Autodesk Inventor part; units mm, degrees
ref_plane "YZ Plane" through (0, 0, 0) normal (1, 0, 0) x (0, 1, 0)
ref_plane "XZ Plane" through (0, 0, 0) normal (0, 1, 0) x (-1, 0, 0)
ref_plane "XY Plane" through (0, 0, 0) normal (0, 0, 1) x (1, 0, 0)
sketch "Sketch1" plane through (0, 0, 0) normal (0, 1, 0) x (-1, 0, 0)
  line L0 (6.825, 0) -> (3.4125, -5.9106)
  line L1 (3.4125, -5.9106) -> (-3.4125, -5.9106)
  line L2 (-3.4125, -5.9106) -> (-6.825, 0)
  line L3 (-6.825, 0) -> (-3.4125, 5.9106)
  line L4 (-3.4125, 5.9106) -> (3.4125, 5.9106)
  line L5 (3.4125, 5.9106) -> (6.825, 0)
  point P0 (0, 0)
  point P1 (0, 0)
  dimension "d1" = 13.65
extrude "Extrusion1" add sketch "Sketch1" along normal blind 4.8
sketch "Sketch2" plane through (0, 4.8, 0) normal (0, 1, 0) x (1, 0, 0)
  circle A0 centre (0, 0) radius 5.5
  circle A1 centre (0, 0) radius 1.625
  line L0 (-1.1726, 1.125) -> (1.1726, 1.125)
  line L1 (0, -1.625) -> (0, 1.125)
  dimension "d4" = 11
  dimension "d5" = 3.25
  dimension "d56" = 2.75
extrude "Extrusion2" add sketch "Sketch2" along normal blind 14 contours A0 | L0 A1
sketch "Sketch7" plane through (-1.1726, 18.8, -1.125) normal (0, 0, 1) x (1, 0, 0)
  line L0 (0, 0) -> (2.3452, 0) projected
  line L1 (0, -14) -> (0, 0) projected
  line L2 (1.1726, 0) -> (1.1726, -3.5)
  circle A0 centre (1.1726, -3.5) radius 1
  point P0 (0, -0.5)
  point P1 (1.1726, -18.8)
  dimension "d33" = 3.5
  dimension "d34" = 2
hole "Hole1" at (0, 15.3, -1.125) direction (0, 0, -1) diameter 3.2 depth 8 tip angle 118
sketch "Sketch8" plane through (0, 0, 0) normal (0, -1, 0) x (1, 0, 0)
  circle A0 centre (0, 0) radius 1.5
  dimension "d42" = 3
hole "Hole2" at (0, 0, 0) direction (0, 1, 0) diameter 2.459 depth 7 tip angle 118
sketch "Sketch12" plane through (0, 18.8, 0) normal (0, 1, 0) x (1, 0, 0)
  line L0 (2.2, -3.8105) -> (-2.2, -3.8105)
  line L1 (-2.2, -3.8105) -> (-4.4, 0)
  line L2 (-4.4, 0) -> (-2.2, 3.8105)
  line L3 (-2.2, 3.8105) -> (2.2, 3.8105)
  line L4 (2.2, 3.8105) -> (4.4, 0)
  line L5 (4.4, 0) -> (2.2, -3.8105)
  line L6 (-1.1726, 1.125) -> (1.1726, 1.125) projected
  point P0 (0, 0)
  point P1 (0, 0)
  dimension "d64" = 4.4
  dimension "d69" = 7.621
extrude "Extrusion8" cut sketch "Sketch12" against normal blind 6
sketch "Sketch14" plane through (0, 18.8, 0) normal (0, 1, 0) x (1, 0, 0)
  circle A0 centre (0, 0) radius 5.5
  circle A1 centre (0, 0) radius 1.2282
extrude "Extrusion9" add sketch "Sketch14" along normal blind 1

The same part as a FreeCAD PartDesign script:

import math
import FreeCAD as App
import Part
import Sketcher
from FreeCAD import Vector
Q = App.Units.Quantity

doc = App.newDocument("Part")
body = doc.addObject("PartDesign::Body", "Body")

# Sketch on XZ plane
sketch1 = body.newObject("Sketcher::SketchObject", "Sketch")
sketch1.AttachmentSupport = (doc.getObject("XZ_Plane"), [""])
sketch1.MapMode = "FlatFace"
sketch1.addGeometry([
    Part.LineSegment(Vector(-3.4125, -5.9106, 0), Vector(-6.825, 0, 0)),  # 0
    Part.LineSegment(Vector(-6.825, 0, 0), Vector(-3.4125, 5.9106, 0)),  # 1
    Part.LineSegment(Vector(-3.4125, 5.9106, 0), Vector(3.4125, 5.9106, 0)),  # 2
    Part.LineSegment(Vector(3.4125, 5.9106, 0), Vector(6.825, 0, 0)),  # 3
    Part.LineSegment(Vector(6.825, 0, 0), Vector(3.4125, -5.9106, 0)),  # 4
    Part.LineSegment(Vector(3.4125, -5.9106, 0), Vector(-3.4125, -5.9106, 0)),  # 5
], False)
sketch1.addConstraint([
    Sketcher.Constraint("Coincident", 0, 2, 1, 1),
    Sketcher.Constraint("Coincident", 1, 2, 2, 1),
    Sketcher.Constraint("Coincident", 2, 2, 3, 1),
    Sketcher.Constraint("Coincident", 3, 2, 4, 1),
    Sketcher.Constraint("Coincident", 4, 2, 5, 1),
    Sketcher.Constraint("Coincident", 5, 2, 0, 1),
    Sketcher.Constraint("Horizontal", 2),
    Sketcher.Constraint("Horizontal", 5),
    Sketcher.Constraint("Symmetric", 0, 2, 3, 2, -1, 1),
    Sketcher.Constraint("Symmetric", 1, 2, 4, 2, -1, 1),
    Sketcher.Constraint("PointOnObject", 0, 2, -1),
    Sketcher.Constraint("Parallel", 0, 3),
    Sketcher.Constraint("Vertical", 2, 2, 4, 2),
    Sketcher.Constraint("Angle", 0, Q("120 deg")),
    Sketcher.Constraint("DistanceX", 0, 2, 3, 2, Q("13.65 mm")),
    Sketcher.Constraint("DistanceX", 2, 1, 2, 2, Q("6.825 mm")),
])
pad1 = body.newObject("PartDesign::Pad", "Pad")
pad1.Profile = sketch1
pad1.Length = 4.8
pad1.Reversed = True

# Sketch on XZ plane
sketch2 = body.newObject("Sketcher::SketchObject", "Sketch001")
sketch2.AttachmentSupport = (doc.getObject("XZ_Plane"), [""])
sketch2.MapMode = "FlatFace"
sketch2.AttachmentOffset = App.Placement(Vector(0, 0, -4.8), App.Rotation())
sketch2.addGeometry([
    Part.Circle(Vector(0, 0, 0), Vector(0, 0, 1), 5.5),
    Part.ArcOfCircle(Part.Circle(Vector(0, 0, 0), Vector(0, 0, 1), 1.625), math.radians(-43.813158), math.radians(223.813158)),
    Part.LineSegment(Vector(1.1726, -1.125, 0), Vector(-1.1726, -1.125, 0)),
], False)
sketch2.addConstraint([
    Sketcher.Constraint("Coincident", 1, 1, 2, 1),
    Sketcher.Constraint("Coincident", 2, 2, 1, 2),
    Sketcher.Constraint("Horizontal", 2),
    Sketcher.Constraint("Coincident", 0, 3, -1, 1),
    Sketcher.Constraint("Coincident", 1, 3, -1, 1),
    Sketcher.Constraint("Diameter", 0, Q("11 mm")),
    Sketcher.Constraint("Radius", 1, Q("1.625 mm")),
    Sketcher.Constraint("DistanceX", 2, 2, 2, 1, Q("2.3452 mm")),
])
pad2 = body.newObject("PartDesign::Pad", "Pad001")
pad2.Profile = sketch2
pad2.Length = 14
pad2.Reversed = True

# Sketch on XY plane
sketch3 = body.newObject("Sketcher::SketchObject", "Sketch002")
sketch3.AttachmentSupport = (doc.getObject("XY_Plane"), [""])
sketch3.MapMode = "FlatFace"
sketch3.AttachmentOffset = App.Placement(Vector(0, 0, -1.125), App.Rotation())
sketch3.addGeometry(Part.Circle(Vector(0, 15.3, 0), Vector(0, 0, 1), 1.6), False)
sketch3.addConstraint([
    Sketcher.Constraint("PointOnObject", 0, 3, -2),
    Sketcher.Constraint("Diameter", 0, Q("3.2 mm")),
    Sketcher.Constraint("DistanceY", -1, 1, 0, 3, Q("15.3 mm")),
])
doc.recompute()
hole = body.newObject("PartDesign::Hole", "Hole")
hole.Profile = sketch3
hole.ThreadType = "None"
hole.Diameter = 3.2
hole.DepthType = "Dimension"
hole.Depth = 8
hole.DrillPoint = "Angled"
hole.DrillPointAngle = 118

# Sketch on XZ plane
sketch4 = body.newObject("Sketcher::SketchObject", "Sketch003")
sketch4.AttachmentSupport = (doc.getObject("XZ_Plane"), [""])
sketch4.MapMode = "FlatFace"
sketch4.addGeometry(Part.Circle(Vector(0, 0, 0), Vector(0, 0, 1), 1.2295), False)
sketch4.addConstraint([
    Sketcher.Constraint("Coincident", 0, 3, -1, 1),
    Sketcher.Constraint("Diameter", 0, Q("2.459 mm")),
])
doc.recompute()
hole2 = body.newObject("PartDesign::Hole", "Hole001")
hole2.Profile = sketch4
hole2.ThreadType = "None"
hole2.Diameter = 2.459
hole2.DepthType = "Dimension"
hole2.Depth = 7
hole2.DrillPoint = "Angled"
hole2.DrillPointAngle = 118

# Sketch on XZ plane
sketch5 = body.newObject("Sketcher::SketchObject", "Sketch004")
sketch5.AttachmentSupport = (doc.getObject("XZ_Plane"), [""])
sketch5.MapMode = "FlatFace"
sketch5.AttachmentOffset = App.Placement(Vector(0, 0, -18.8), App.Rotation())
sketch5.addGeometry([
    Part.LineSegment(Vector(-2.2, 3.8105, 0), Vector(2.2, 3.8105, 0)),  # 0
    Part.LineSegment(Vector(2.2, 3.8105, 0), Vector(4.4, 0, 0)),  # 1
    Part.LineSegment(Vector(4.4, 0, 0), Vector(2.2, -3.8105, 0)),  # 2
    Part.LineSegment(Vector(2.2, -3.8105, 0), Vector(-2.2, -3.8105, 0)),  # 3
    Part.LineSegment(Vector(-2.2, -3.8105, 0), Vector(-4.4, 0, 0)),  # 4
    Part.LineSegment(Vector(-4.4, 0, 0), Vector(-2.2, 3.8105, 0)),  # 5
], False)
sketch5.addConstraint([
    Sketcher.Constraint("Coincident", 0, 2, 1, 1),
    Sketcher.Constraint("Coincident", 1, 2, 2, 1),
    Sketcher.Constraint("Coincident", 2, 2, 3, 1),
    Sketcher.Constraint("Coincident", 3, 2, 4, 1),
    Sketcher.Constraint("Coincident", 4, 2, 5, 1),
    Sketcher.Constraint("Coincident", 5, 2, 0, 1),
    Sketcher.Constraint("Horizontal", 0),
    Sketcher.Constraint("Horizontal", 3),
    Sketcher.Constraint("Symmetric", 0, 2, 3, 2, -1, 1),
    Sketcher.Constraint("Symmetric", 1, 2, 4, 2, -1, 1),
    Sketcher.Constraint("PointOnObject", 1, 2, -1),
    Sketcher.Constraint("Parallel", 2, 5),
    Sketcher.Constraint("Vertical", 0, 2, 2, 2),
    Sketcher.Constraint("DistanceX", 0, 1, 0, 2, Q("4.4 mm")),
    Sketcher.Constraint("Distance", 1, Q("4.4 mm")),
    Sketcher.Constraint("DistanceX", -1, 1, 1, 2, Q("4.4 mm")),
])
pocket1 = body.newObject("PartDesign::Pocket", "Pocket")
pocket1.Profile = sketch5
pocket1.Length = 6
pocket1.Reversed = True

# Sketch on XZ plane
sketch6 = body.newObject("Sketcher::SketchObject", "Sketch005")
sketch6.AttachmentSupport = (doc.getObject("XZ_Plane"), [""])
sketch6.MapMode = "FlatFace"
sketch6.AttachmentOffset = App.Placement(Vector(0, 0, -18.8), App.Rotation())
sketch6.addGeometry([
    Part.Circle(Vector(0, 0, 0), Vector(0, 0, 1), 5.5),
    Part.Circle(Vector(0, 0, 0), Vector(0, 0, 1), 1.2282),
], False)
sketch6.addConstraint([
    Sketcher.Constraint("Coincident", 0, 3, -1, 1),
    Sketcher.Constraint("Coincident", 1, 3, -1, 1),
    Sketcher.Constraint("Diameter", 0, Q("11 mm")),
    Sketcher.Constraint("Diameter", 1, Q("2.4564 mm")),
])
pad3 = body.newObject("PartDesign::Pad", "Pad002")
pad3.Profile = sketch6
pad3.Length = 1
pad3.Reversed = True

doc.recompute()
